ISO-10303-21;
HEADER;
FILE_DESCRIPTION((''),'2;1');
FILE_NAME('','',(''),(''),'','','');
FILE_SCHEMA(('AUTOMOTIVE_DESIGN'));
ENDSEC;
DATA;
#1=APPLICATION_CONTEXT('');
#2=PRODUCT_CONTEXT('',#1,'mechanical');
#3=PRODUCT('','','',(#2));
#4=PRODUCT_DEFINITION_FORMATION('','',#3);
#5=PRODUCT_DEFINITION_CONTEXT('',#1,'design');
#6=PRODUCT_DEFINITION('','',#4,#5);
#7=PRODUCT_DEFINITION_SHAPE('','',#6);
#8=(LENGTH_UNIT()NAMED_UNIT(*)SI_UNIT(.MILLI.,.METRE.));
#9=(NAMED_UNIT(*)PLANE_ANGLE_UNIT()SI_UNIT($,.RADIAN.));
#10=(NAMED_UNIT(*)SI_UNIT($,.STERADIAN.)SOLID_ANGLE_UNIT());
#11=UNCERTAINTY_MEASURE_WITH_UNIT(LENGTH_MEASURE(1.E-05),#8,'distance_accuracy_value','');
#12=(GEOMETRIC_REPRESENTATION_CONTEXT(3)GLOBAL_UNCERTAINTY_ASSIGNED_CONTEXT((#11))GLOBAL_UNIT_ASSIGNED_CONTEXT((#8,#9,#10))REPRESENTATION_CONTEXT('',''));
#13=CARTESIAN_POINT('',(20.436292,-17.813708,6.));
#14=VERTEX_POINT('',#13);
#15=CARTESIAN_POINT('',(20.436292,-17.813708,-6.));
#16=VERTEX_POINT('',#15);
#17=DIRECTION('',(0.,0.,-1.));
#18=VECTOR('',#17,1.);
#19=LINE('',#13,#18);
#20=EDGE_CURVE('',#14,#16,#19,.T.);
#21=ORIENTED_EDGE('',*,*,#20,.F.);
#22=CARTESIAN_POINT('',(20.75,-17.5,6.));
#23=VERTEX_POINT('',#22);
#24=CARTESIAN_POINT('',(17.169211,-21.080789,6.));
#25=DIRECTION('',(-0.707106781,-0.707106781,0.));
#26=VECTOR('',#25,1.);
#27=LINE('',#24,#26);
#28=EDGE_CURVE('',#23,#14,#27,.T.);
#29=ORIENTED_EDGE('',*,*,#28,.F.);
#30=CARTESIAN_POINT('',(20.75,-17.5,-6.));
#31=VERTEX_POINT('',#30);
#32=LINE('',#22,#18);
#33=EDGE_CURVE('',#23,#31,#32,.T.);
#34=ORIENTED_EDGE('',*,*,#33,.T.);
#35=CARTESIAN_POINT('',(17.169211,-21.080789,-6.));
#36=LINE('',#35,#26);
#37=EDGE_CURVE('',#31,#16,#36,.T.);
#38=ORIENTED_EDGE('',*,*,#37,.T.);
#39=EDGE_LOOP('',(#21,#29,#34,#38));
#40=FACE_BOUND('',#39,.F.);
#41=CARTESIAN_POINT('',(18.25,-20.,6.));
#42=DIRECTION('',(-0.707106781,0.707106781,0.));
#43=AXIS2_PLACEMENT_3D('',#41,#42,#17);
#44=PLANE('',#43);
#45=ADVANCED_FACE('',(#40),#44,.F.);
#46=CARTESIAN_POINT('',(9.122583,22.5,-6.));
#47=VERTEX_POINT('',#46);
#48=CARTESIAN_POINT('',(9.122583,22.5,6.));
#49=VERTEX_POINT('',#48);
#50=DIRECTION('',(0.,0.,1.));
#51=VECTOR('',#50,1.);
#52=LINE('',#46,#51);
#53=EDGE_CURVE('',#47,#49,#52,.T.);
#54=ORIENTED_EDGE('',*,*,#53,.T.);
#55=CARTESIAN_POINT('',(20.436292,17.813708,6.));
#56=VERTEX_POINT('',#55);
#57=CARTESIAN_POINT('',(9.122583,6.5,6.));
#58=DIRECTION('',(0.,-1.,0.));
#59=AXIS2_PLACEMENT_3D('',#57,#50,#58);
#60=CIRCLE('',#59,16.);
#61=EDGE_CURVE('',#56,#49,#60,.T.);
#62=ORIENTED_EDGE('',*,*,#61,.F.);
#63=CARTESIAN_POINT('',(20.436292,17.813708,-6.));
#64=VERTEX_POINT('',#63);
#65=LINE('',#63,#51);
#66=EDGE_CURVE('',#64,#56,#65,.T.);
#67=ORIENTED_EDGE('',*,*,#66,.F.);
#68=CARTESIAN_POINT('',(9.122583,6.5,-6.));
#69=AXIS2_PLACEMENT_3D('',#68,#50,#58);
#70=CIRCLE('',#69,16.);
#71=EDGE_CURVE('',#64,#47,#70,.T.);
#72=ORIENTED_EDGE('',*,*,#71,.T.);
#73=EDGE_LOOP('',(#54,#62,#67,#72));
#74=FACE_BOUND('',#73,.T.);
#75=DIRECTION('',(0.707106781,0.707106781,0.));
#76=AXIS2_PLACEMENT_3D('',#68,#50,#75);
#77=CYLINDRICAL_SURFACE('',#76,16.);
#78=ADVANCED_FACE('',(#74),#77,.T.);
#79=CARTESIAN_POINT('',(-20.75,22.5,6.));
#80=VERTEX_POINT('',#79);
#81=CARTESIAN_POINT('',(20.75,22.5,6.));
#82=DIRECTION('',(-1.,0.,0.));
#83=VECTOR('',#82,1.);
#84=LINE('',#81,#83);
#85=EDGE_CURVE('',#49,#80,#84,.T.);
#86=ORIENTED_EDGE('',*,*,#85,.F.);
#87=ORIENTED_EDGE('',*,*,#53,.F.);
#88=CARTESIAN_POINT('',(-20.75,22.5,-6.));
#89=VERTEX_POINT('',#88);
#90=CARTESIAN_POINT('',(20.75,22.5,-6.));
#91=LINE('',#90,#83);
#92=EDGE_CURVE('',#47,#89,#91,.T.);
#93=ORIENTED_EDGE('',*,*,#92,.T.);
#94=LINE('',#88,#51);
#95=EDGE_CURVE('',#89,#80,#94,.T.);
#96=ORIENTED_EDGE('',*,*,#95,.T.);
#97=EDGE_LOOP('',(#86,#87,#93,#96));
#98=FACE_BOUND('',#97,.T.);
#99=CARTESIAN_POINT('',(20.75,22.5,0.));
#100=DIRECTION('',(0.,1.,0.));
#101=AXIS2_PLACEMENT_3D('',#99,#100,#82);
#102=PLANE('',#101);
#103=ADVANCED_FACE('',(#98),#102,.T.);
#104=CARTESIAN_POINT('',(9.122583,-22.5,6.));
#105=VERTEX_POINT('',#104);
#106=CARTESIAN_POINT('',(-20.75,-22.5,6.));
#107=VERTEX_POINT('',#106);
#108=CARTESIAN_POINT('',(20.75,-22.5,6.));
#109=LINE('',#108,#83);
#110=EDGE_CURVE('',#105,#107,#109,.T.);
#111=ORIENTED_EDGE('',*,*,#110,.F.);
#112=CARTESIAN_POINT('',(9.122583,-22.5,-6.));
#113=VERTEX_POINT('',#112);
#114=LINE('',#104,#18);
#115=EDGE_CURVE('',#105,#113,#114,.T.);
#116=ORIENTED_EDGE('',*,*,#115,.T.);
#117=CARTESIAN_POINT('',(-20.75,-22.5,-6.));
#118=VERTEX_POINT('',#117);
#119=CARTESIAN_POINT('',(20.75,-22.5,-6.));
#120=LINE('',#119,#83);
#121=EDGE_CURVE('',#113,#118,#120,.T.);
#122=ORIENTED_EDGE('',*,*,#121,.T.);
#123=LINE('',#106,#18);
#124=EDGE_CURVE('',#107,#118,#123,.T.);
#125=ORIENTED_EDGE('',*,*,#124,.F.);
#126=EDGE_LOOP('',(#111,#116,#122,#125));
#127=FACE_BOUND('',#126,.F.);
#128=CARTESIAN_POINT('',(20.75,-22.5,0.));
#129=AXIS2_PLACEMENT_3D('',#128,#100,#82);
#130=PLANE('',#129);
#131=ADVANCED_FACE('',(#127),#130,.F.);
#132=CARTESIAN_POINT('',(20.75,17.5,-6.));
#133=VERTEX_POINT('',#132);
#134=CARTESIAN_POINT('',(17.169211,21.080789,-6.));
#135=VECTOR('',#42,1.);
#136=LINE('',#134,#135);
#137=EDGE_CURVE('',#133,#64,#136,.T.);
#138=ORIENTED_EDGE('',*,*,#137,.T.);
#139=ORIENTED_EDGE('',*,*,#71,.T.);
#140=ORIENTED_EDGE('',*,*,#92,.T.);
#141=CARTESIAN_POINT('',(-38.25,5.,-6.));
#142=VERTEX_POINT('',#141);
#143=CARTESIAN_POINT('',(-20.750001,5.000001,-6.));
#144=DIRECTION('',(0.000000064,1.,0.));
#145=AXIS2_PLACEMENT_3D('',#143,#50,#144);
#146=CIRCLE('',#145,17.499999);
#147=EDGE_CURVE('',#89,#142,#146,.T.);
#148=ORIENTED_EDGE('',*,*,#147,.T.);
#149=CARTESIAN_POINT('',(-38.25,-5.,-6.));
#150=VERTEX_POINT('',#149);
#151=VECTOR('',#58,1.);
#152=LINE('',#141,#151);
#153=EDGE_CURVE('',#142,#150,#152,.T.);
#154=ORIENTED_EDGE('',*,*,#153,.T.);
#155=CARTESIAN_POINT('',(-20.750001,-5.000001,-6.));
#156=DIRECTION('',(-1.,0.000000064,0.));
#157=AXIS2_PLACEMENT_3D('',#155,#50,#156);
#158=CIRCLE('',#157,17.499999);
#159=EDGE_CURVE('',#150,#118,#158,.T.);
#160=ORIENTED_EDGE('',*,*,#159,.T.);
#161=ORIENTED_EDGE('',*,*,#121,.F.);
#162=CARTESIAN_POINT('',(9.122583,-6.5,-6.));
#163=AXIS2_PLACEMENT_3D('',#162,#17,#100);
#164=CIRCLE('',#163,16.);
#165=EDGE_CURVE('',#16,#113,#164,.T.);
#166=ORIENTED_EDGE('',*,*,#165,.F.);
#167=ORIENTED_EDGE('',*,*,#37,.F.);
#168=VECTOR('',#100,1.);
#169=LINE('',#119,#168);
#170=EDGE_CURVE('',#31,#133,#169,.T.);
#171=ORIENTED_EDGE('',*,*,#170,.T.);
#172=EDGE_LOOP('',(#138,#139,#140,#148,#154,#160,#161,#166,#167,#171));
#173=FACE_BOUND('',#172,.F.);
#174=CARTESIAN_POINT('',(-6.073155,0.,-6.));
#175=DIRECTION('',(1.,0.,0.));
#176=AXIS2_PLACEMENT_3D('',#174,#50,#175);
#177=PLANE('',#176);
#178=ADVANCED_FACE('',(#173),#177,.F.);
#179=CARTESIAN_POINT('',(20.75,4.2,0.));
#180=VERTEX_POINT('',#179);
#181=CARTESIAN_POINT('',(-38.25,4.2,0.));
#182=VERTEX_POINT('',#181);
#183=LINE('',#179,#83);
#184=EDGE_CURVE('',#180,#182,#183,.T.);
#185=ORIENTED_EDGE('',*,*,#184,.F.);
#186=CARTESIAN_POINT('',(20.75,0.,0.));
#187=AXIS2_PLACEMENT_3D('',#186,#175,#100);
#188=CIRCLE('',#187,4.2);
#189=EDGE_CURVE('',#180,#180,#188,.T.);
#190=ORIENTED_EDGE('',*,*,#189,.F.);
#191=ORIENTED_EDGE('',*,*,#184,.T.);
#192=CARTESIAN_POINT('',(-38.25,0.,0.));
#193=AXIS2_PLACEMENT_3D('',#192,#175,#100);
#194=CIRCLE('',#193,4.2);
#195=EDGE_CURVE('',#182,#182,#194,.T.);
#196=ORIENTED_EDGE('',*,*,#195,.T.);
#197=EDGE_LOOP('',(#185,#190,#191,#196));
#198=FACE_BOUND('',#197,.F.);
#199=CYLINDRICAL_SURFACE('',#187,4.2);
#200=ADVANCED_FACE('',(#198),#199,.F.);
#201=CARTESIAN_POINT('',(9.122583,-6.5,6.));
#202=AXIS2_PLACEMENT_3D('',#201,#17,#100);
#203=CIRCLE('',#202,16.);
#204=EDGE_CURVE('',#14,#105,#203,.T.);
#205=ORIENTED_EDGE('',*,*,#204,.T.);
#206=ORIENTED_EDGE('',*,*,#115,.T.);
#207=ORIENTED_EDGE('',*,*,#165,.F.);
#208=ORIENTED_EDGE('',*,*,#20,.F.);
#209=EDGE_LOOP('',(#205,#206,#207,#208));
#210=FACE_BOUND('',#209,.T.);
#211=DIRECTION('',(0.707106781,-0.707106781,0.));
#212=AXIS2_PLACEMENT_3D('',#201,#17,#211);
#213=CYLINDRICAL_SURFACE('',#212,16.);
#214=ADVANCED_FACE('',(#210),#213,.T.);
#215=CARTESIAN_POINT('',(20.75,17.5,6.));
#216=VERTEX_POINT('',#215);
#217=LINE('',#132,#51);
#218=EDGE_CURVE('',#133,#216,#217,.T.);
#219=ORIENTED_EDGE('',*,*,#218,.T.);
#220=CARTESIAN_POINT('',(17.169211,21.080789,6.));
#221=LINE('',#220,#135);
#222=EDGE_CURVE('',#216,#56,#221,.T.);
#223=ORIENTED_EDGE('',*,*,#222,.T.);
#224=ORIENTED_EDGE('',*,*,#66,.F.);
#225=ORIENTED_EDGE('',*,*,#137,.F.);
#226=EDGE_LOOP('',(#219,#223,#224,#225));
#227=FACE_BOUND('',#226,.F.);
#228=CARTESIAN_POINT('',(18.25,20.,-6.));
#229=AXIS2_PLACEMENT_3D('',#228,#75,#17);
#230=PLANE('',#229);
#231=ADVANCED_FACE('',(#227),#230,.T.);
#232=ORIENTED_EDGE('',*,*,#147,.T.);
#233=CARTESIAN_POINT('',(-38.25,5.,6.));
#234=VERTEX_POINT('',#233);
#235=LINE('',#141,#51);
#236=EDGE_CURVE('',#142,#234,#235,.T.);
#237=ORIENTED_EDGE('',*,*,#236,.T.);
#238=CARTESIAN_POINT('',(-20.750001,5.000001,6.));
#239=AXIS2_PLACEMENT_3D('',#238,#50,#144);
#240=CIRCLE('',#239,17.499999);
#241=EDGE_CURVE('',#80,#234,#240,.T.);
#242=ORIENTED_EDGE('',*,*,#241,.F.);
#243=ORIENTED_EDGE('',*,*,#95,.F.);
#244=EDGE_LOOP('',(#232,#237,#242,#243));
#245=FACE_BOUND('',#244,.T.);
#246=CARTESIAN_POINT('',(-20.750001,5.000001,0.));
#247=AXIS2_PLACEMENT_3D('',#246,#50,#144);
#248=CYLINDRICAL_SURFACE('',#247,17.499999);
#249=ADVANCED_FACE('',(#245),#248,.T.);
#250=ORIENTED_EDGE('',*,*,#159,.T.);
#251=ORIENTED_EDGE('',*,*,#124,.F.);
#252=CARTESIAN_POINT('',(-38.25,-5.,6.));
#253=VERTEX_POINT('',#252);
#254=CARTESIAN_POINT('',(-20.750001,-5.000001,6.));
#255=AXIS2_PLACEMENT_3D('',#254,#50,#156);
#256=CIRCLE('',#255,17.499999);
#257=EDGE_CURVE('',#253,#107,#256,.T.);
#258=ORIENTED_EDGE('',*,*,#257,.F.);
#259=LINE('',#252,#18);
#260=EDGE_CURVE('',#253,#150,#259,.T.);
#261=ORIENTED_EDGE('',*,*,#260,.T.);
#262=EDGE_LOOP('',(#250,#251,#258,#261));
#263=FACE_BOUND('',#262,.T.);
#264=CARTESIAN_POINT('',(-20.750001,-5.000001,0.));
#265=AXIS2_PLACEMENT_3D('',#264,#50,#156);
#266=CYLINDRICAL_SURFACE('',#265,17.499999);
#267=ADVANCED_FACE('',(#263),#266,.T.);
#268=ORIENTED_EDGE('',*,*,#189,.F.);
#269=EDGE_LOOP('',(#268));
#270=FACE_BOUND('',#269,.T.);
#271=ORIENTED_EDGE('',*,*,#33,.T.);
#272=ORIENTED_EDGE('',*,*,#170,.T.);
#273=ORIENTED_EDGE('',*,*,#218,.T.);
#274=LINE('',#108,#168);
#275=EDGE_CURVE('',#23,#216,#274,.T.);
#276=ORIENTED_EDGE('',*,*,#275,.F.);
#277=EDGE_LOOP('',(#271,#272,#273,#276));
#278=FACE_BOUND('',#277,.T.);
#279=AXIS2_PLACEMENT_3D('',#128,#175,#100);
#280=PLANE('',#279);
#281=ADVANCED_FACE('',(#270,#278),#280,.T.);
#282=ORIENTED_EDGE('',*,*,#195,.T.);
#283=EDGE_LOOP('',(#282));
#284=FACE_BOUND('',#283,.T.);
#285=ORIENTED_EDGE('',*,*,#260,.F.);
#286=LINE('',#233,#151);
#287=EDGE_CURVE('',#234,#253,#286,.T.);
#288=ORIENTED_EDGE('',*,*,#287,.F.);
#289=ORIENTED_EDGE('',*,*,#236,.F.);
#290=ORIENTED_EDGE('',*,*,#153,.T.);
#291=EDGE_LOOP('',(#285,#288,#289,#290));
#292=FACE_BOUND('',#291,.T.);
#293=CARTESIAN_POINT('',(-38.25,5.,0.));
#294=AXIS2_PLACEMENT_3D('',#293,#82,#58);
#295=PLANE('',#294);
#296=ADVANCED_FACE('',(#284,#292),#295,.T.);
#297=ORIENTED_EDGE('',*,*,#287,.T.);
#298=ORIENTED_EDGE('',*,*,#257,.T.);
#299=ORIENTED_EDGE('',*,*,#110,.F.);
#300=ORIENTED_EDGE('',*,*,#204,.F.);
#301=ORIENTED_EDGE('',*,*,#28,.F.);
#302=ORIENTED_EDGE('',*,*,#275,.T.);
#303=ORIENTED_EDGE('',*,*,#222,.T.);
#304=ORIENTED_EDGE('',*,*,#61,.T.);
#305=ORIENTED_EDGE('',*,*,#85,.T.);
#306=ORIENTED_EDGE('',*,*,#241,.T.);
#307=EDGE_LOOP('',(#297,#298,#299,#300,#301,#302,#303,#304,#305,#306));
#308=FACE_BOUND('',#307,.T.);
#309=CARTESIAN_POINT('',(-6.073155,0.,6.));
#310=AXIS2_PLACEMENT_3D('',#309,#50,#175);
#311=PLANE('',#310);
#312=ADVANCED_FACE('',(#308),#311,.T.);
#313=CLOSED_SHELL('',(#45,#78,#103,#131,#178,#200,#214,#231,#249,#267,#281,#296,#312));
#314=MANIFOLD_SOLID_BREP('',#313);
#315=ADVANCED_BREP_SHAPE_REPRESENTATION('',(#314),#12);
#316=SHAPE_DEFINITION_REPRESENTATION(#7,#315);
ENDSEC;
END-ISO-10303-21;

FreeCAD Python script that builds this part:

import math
import FreeCAD as App
import Part
import Sketcher
from FreeCAD import Vector
Q = App.Units.Quantity


def edges_at(feature, points):
    """Names of the edges that pass closest to the given points."""
    edges = feature.Shape.Edges
    near = lambda p: min(range(len(edges)), key=lambda i: edges[i].distToShape(Part.Vertex(*p))[0])
    return sorted({f"Edge{near(p) + 1}" for p in points})

doc = App.newDocument("Part")
body = doc.addObject("PartDesign::Body", "Body")

# Sketch on XY plane
sketch1 = body.newObject("Sketcher::SketchObject", "Sketch")
sketch1.AttachmentSupport = (doc.getObject("XY_Plane"), [""])
sketch1.MapMode = "FlatFace"
sketch1.addGeometry(Part.LineSegment(Vector(20.75, -22.5, 0), Vector(20.75, 22.5, 0)), False)
sketch1.addGeometry(Part.LineSegment(Vector(20.75, 22.5, 0), Vector(-20.75, 22.5, 0)), False)
sketch1.addGeometry(Part.ArcOfCircle(Part.Circle(Vector(-20.750001, 5.000001, 0), Vector(0, 0, 1), 17.499999), math.radians(89.999996), math.radians(180.000004)), False)
sketch1.addGeometry(Part.LineSegment(Vector(-38.25, 5, 0), Vector(-38.25, -5, 0)), False)
sketch1.addGeometry(Part.ArcOfCircle(Part.Circle(Vector(-20.750001, -5.000001, 0), Vector(0, 0, 1), 17.499999), math.radians(179.999996), math.radians(270.000004)), False)
sketch1.addGeometry(Part.LineSegment(Vector(-20.75, -22.5, 0), Vector(20.75, -22.5, 0)), False)
sketch1.addConstraint(Sketcher.Constraint("Coincident", 0, 2, 1, 1))
sketch1.addConstraint(Sketcher.Constraint("Tangent", 1, 2, 2, 1))
sketch1.addConstraint(Sketcher.Constraint("Tangent", 2, 2, 3, 1))
sketch1.addConstraint(Sketcher.Constraint("Tangent", 3, 2, 4, 1))
sketch1.addConstraint(Sketcher.Constraint("Tangent", 4, 2, 5, 1))
sketch1.addConstraint(Sketcher.Constraint("Coincident", 5, 2, 0, 1))
sketch1.addConstraint(Sketcher.Constraint("Vertical", 0))
sketch1.addConstraint(Sketcher.Constraint("Horizontal", 1))
sketch1.addConstraint(Sketcher.Constraint("Vertical", 3))
sketch1.addConstraint(Sketcher.Constraint("Horizontal", 5))
sketch1.addConstraint(Sketcher.Constraint("Equal", 2, 4))
sketch1.addConstraint(Sketcher.Constraint("Symmetric", 0, 2, 4, 2, -1, 1))
sketch1.addConstraint(Sketcher.Constraint("Radius", 2, Q("17.499999 mm")))
sketch1.addConstraint(Sketcher.Constraint("DistanceY", 0, 1, 0, 2, Q("45 mm")))
sketch1.addConstraint(Sketcher.Constraint("DistanceX", 1, 2, 1, 1, Q("41.5 mm")))
pad1 = body.newObject("PartDesign::Pad", "Pad")
pad1.Profile = sketch1
pad1.Length = 12
pad1.Midplane = True

# Sketch on YZ plane
sketch2 = body.newObject("Sketcher::SketchObject", "Sketch001")
sketch2.AttachmentSupport = (doc.getObject("YZ_Plane"), [""])
sketch2.MapMode = "FlatFace"
sketch2.AttachmentOffset = App.Placement(Vector(0, 0, 20.75), App.Rotation())
sketch2.addGeometry(Part.Circle(Vector(0, 0, 0), Vector(0, 0, 1), 4.2), False)
sketch2.addConstraint(Sketcher.Constraint("Coincident", 0, 3, -1, 1))
sketch2.addConstraint(Sketcher.Constraint("Diameter", 0, Q("8.4 mm")))
pocket1 = body.newObject("PartDesign::Pocket", "Pocket")
pocket1.Profile = sketch2
pocket1.Type = "ThroughAll"
doc.recompute()

chamfer = body.newObject("PartDesign::Chamfer", "Chamfer")
chamfer.Base = (pocket1, edges_at(pocket1, [(20.75, 22.5, 0), (20.75, -22.5, 0)]))
chamfer.Size = 5
doc.recompute()

fillet = body.newObject("PartDesign::Fillet", "Fillet")
fillet.Base = (chamfer, edges_at(chamfer, [(15.75, 22.5, 0), (15.75, -22.5, 0)]))
fillet.Radius = 16

doc.recompute()
